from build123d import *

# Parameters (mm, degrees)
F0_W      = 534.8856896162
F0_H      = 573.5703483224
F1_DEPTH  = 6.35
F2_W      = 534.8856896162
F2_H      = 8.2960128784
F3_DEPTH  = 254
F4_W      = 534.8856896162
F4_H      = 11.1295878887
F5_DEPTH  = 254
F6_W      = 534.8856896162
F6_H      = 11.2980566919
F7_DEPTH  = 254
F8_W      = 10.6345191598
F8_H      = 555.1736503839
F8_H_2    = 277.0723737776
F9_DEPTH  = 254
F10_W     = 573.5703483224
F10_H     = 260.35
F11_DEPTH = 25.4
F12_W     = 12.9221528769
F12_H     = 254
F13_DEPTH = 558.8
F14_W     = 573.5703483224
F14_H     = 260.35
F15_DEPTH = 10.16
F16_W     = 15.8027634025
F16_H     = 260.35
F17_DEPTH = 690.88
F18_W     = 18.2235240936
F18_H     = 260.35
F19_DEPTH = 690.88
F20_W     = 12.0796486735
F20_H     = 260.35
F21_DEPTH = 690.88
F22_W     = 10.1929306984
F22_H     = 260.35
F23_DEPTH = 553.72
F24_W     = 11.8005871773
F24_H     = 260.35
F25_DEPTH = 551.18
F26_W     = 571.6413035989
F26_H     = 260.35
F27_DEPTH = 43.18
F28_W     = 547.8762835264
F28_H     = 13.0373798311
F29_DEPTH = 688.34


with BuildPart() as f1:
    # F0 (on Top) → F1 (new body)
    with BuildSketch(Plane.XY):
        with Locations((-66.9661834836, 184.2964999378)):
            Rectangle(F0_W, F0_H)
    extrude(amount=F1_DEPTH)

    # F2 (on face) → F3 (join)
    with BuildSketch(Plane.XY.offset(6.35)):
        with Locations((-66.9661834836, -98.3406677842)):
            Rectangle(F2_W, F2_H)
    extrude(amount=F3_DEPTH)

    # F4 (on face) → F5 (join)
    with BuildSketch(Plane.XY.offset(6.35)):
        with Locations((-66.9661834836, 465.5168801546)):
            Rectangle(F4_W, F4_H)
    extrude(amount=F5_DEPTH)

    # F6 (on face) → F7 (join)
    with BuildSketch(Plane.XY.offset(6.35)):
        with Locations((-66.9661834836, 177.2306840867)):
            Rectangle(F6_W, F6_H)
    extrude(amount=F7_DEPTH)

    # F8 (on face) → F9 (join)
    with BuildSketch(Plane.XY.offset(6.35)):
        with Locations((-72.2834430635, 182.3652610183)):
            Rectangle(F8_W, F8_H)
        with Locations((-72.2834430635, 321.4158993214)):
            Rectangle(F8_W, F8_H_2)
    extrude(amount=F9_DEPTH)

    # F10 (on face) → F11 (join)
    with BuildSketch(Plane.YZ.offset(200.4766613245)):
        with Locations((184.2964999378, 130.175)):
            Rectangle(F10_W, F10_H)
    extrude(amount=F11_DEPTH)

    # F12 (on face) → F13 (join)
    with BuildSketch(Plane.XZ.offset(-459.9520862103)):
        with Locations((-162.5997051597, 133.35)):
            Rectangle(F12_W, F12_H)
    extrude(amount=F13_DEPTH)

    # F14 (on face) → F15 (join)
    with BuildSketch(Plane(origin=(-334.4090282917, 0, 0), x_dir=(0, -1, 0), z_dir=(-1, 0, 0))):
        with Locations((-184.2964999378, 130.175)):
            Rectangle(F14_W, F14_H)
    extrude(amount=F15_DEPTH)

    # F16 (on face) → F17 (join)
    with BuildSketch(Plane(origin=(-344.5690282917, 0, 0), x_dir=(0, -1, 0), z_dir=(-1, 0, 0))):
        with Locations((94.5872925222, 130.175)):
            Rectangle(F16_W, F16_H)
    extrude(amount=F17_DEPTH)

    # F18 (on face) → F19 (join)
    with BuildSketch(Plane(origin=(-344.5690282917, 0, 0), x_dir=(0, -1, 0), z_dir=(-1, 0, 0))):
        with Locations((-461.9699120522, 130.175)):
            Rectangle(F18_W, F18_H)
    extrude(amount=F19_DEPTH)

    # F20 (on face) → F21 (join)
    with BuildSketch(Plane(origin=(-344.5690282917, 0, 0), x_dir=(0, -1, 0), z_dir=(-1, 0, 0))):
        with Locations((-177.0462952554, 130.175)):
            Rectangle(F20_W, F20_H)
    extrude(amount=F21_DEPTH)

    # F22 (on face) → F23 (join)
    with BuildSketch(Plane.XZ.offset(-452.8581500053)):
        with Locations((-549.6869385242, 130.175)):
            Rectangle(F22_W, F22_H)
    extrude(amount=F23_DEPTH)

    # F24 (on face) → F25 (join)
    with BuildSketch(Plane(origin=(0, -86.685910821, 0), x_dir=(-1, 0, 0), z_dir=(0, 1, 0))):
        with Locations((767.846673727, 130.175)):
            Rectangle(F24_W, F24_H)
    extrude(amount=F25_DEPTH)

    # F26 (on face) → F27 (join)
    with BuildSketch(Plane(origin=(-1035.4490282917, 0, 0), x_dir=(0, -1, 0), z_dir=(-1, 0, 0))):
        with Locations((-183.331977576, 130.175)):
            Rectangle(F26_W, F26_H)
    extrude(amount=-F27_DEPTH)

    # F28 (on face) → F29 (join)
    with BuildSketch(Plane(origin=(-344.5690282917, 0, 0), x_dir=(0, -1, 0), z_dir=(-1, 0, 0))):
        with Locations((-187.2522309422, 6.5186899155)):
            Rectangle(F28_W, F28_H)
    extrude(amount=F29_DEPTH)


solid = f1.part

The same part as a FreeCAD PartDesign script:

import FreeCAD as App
import Part
import Sketcher
Q = App.Units.Quantity

doc = App.newDocument("Part")
body = doc.addObject("PartDesign::Body", "Body")

# Sketch on XY plane
sketch1 = body.newObject("Sketcher::SketchObject", "Sketch")
sketch1.AttachmentSupport = (doc.getObject("XY_Plane"), [""])
sketch1.MapMode = "FlatFace"
sketch1.addGeometry(Part.LineSegment(App.Vector(-334, 471, 0), App.Vector(-334, -102, 0)), False)
sketch1.addGeometry(Part.LineSegment(App.Vector(-334, -102, 0), App.Vector(200, -102, 0)), False)
sketch1.addGeometry(Part.LineSegment(App.Vector(200, -102, 0), App.Vector(200, 471, 0)), False)
sketch1.addGeometry(Part.LineSegment(App.Vector(200, 471, 0), App.Vector(-334, 471, 0)), False)
sketch1.addConstraint(Sketcher.Constraint("Coincident", 0, 2, 1, 1))
sketch1.addConstraint(Sketcher.Constraint("Coincident", 1, 2, 2, 1))
sketch1.addConstraint(Sketcher.Constraint("Coincident", 2, 2, 3, 1))
sketch1.addConstraint(Sketcher.Constraint("Coincident", 3, 2, 0, 1))
sketch1.addConstraint(Sketcher.Constraint("Vertical", 0))
sketch1.addConstraint(Sketcher.Constraint("Horizontal", 1))
sketch1.addConstraint(Sketcher.Constraint("Vertical", 2))
sketch1.addConstraint(Sketcher.Constraint("Horizontal", 3))
sketch1.addConstraint(Sketcher.Constraint("DistanceX", 1, 1, 1, 2, 534.88569))
sketch1.addConstraint(Sketcher.Constraint("DistanceY", 0, 2, 0, 1, 573.570348))
sketch1.addConstraint(Sketcher.Constraint("DistanceX", 0, 2, -1, 1, 334.409028))
sketch1.addConstraint(Sketcher.Constraint("DistanceY", 0, 2, -1, 1, 102.488674))
pad1 = body.newObject("PartDesign::Pad", "Pad")
pad1.Profile = sketch1
pad1.Length = Q("0.25 in")

# Sketch on XY plane
sketch2 = body.newObject("Sketcher::SketchObject", "Sketch001")
sketch2.AttachmentSupport = (doc.getObject("XY_Plane"), [""])
sketch2.MapMode = "FlatFace"
sketch2.AttachmentOffset = App.Placement(App.Vector(0, 0, 0.25 * 25.4), App.Rotation())
sketch2.addGeometry(Part.LineSegment(App.Vector(-334, -94, 0), App.Vector(-334, -102, 0)), False)
sketch2.addGeometry(Part.LineSegment(App.Vector(-334, -102, 0), App.Vector(200, -102, 0)), False)
sketch2.addGeometry(Part.LineSegment(App.Vector(200, -102, 0), App.Vector(200, -94, 0)), False)
sketch2.addGeometry(Part.LineSegment(App.Vector(200, -94, 0), App.Vector(-334, -94, 0)), False)
sketch2.addConstraint(Sketcher.Constraint("Coincident", 0, 2, 1, 1))
sketch2.addConstraint(Sketcher.Constraint("Coincident", 1, 2, 2, 1))
sketch2.addConstraint(Sketcher.Constraint("Coincident", 2, 2, 3, 1))
sketch2.addConstraint(Sketcher.Constraint("Coincident", 3, 2, 0, 1))
sketch2.addConstraint(Sketcher.Constraint("Vertical", 0))
sketch2.addConstraint(Sketcher.Constraint("Horizontal", 1))
sketch2.addConstraint(Sketcher.Constraint("Vertical", 2))
sketch2.addConstraint(Sketcher.Constraint("Horizontal", 3))
sketch2.addConstraint(Sketcher.Constraint("DistanceX", 1, 1, 1, 2, 534.88569))
sketch2.addConstraint(Sketcher.Constraint("DistanceY", 0, 2, 0, 1, 8.296013))
sketch2.addConstraint(Sketcher.Constraint("DistanceX", 0, 2, -1, 1, 334.409028))
sketch2.addConstraint(Sketcher.Constraint("DistanceY", 2, 2, -1, 1, 94.192661))
pad2 = body.newObject("PartDesign::Pad", "Pad001")
pad2.Profile = sketch2
pad2.Length = Q("10 in")

# Sketch on XY plane
sketch3 = body.newObject("Sketcher::SketchObject", "Sketch002")
sketch3.AttachmentSupport = (doc.getObject("XY_Plane"), [""])
sketch3.MapMode = "FlatFace"
sketch3.AttachmentOffset = App.Placement(App.Vector(0, 0, 0.25 * 25.4), App.Rotation())
sketch3.addGeometry(Part.LineSegment(App.Vector(-334, 471, 0), App.Vector(-334, 460, 0)), False)
sketch3.addGeometry(Part.LineSegment(App.Vector(-334, 460, 0), App.Vector(200, 460, 0)), False)
sketch3.addGeometry(Part.LineSegment(App.Vector(200, 460, 0), App.Vector(200, 471, 0)), False)
sketch3.addGeometry(Part.LineSegment(App.Vector(200, 471, 0), App.Vector(-334, 471, 0)), False)
sketch3.addConstraint(Sketcher.Constraint("Coincident", 0, 2, 1, 1))
sketch3.addConstraint(Sketcher.Constraint("Coincident", 1, 2, 2, 1))
sketch3.addConstraint(Sketcher.Constraint("Coincident", 2, 2, 3, 1))
sketch3.addConstraint(Sketcher.Constraint("Coincident", 3, 2, 0, 1))
sketch3.addConstraint(Sketcher.Constraint("Vertical", 0))
sketch3.addConstraint(Sketcher.Constraint("Horizontal", 1))
sketch3.addConstraint(Sketcher.Constraint("Vertical", 2))
sketch3.addConstraint(Sketcher.Constraint("Horizontal", 3))
sketch3.addConstraint(Sketcher.Constraint("DistanceX", 1, 1, 1, 2, 534.88569))
sketch3.addConstraint(Sketcher.Constraint("DistanceY", 0, 2, 0, 1, 11.129588))
sketch3.addConstraint(Sketcher.Constraint("DistanceX", 0, 2, -1, 1, 334.409028))
sketch3.addConstraint(Sketcher.Constraint("DistanceY", -1, 1, 0, 2, 459.952086))
pad3 = body.newObject("PartDesign::Pad", "Pad002")
pad3.Profile = sketch3
pad3.Length = Q("10 in")

# Sketch on XY plane
sketch4 = body.newObject("Sketcher::SketchObject", "Sketch003")
sketch4.AttachmentSupport = (doc.getObject("XY_Plane"), [""])
sketch4.MapMode = "FlatFace"
sketch4.AttachmentOffset = App.Placement(App.Vector(0, 0, 0.25 * 25.4), App.Rotation())
sketch4.addGeometry(Part.LineSegment(App.Vector(-334, 183, 0), App.Vector(-334, 172, 0)), False)
sketch4.addGeometry(Part.LineSegment(App.Vector(-334, 172, 0), App.Vector(200, 172, 0)), False)
sketch4.addGeometry(Part.LineSegment(App.Vector(200, 172, 0), App.Vector(200, 183, 0)), False)
sketch4.addGeometry(Part.LineSegment(App.Vector(200, 183, 0), App.Vector(-334, 183, 0)), False)
sketch4.addConstraint(Sketcher.Constraint("Coincident", 0, 2, 1, 1))
sketch4.addConstraint(Sketcher.Constraint("Coincident", 1, 2, 2, 1))
sketch4.addConstraint(Sketcher.Constraint("Coincident", 2, 2, 3, 1))
sketch4.addConstraint(Sketcher.Constraint("Coincident", 3, 2, 0, 1))
sketch4.addConstraint(Sketcher.Constraint("Vertical", 0))
sketch4.addConstraint(Sketcher.Constraint("Horizontal", 1))
sketch4.addConstraint(Sketcher.Constraint("Vertical", 2))
sketch4.addConstraint(Sketcher.Constraint("Horizontal", 3))
sketch4.addConstraint(Sketcher.Constraint("DistanceX", 1, 1, 1, 2, 534.88569))
sketch4.addConstraint(Sketcher.Constraint("DistanceY", 0, 2, 0, 1, 11.298057))
sketch4.addConstraint(Sketcher.Constraint("DistanceX", 0, 2, -1, 1, 334.409028))
sketch4.addConstraint(Sketcher.Constraint("DistanceY", -1, 1, 0, 2, 171.581656))
pad4 = body.newObject("PartDesign::Pad", "Pad003")
pad4.Profile = sketch4
pad4.Length = Q("10 in")

# Sketch on XY plane
sketch5 = body.newObject("Sketcher::SketchObject", "Sketch004")
sketch5.AttachmentSupport = (doc.getObject("XY_Plane"), [""])
sketch5.MapMode = "FlatFace"
sketch5.AttachmentOffset = App.Placement(App.Vector(0, 0, 0.25 * 25.4), App.Rotation())
sketch5.addGeometry(Part.LineSegment(App.Vector(-78, -95, 0), App.Vector(-67, -95, 0)), False)
sketch5.addGeometry(Part.LineSegment(App.Vector(-67, -95, 0), App.Vector(-67, 460, 0)), False)
sketch5.addGeometry(Part.LineSegment(App.Vector(-67, 460, 0), App.Vector(-78, 460, 0)), False)
sketch5.addGeometry(Part.LineSegment(App.Vector(-78, 460, 0), App.Vector(-78, -95, 0)), False)
sketch5.addConstraint(Sketcher.Constraint("Coincident", 0, 2, 1, 1))
sketch5.addConstraint(Sketcher.Constraint("Coincident", 1, 2, 2, 1))
sketch5.addConstraint(Sketcher.Constraint("Coincident", 2, 2, 3, 1))
sketch5.addConstraint(Sketcher.Constraint("Coincident", 3, 2, 0, 1))
sketch5.addConstraint(Sketcher.Constraint("Horizontal", 0))
sketch5.addConstraint(Sketcher.Constraint("Vertical", 1))
sketch5.addConstraint(Sketcher.Constraint("Horizontal", 2))
sketch5.addConstraint(Sketcher.Constraint("Vertical", 3))
sketch5.addConstraint(Sketcher.Constraint("DistanceX", 0, 1, 0, 2, 10.634519))
sketch5.addConstraint(Sketcher.Constraint("DistanceY", 1, 1, 1, 2, 555.17365))
sketch5.addConstraint(Sketcher.Constraint("DistanceX", 0, 2, -1, 1, 66.966183))
sketch5.addConstraint(Sketcher.Constraint("DistanceY", 0, 2, -1, 1, 95.221564))
pad5 = body.newObject("PartDesign::Pad", "Pad004")
pad5.Profile = sketch5
pad5.Length = Q("10 in")

# Sketch on YZ plane
sketch6 = body.newObject("Sketcher::SketchObject", "Sketch005")
sketch6.AttachmentSupport = (doc.getObject("YZ_Plane"), [""])
sketch6.MapMode = "FlatFace"
sketch6.AttachmentOffset = App.Placement(App.Vector(0, 0, 200.476661), App.Rotation())
sketch6.addGeometry(Part.LineSegment(App.Vector(-102, 260, 0), App.Vector(-102, 0, 0)), False)
sketch6.addGeometry(Part.LineSegment(App.Vector(-102, 0, 0), App.Vector(471, 0, 0)), False)
sketch6.addGeometry(Part.LineSegment(App.Vector(471, 0, 0), App.Vector(471, 260, 0)), False)
sketch6.addGeometry(Part.LineSegment(App.Vector(471, 260, 0), App.Vector(-102, 260, 0)), False)
sketch6.addConstraint(Sketcher.Constraint("Coincident", 0, 2, 1, 1))
sketch6.addConstraint(Sketcher.Constraint("Coincident", 1, 2, 2, 1))
sketch6.addConstraint(Sketcher.Constraint("Coincident", 2, 2, 3, 1))
sketch6.addConstraint(Sketcher.Constraint("Coincident", 3, 2, 0, 1))
sketch6.addConstraint(Sketcher.Constraint("Vertical", 0))
sketch6.addConstraint(Sketcher.Constraint("Horizontal", 1))
sketch6.addConstraint(Sketcher.Constraint("Vertical", 2))
sketch6.addConstraint(Sketcher.Constraint("Horizontal", 3))
sketch6.addConstraint(Sketcher.Constraint("PointOnObject", 0, 2, -1))
sketch6.addConstraint(Sketcher.Constraint("DistanceY", 0, 2, 0, 1, Q("10.25 in")))
sketch6.addConstraint(Sketcher.Constraint("DistanceX", 1, 1, 1, 2, 573.570348))
sketch6.addConstraint(Sketcher.Constraint("DistanceX", 0, 2, -1, 1, 102.488674))
pad6 = body.newObject("PartDesign::Pad", "Pad005")
pad6.Profile = sketch6
pad6.Length = Q("1 in")

# Sketch on XZ plane
sketch7 = body.newObject("Sketcher::SketchObject", "Sketch006")
sketch7.AttachmentSupport = (doc.getObject("XZ_Plane"), [""])
sketch7.MapMode = "FlatFace"
sketch7.AttachmentOffset = App.Placement(App.Vector(0, 0, -459.952086), App.Rotation())
sketch7.addGeometry(Part.LineSegment(App.Vector(-169, 260, 0), App.Vector(-169, 6, 0)), False)
sketch7.addGeometry(Part.LineSegment(App.Vector(-169, 6, 0), App.Vector(-156, 6, 0)), False)
sketch7.addGeometry(Part.LineSegment(App.Vector(-156, 6, 0), App.Vector(-156, 260, 0)), False)
sketch7.addGeometry(Part.LineSegment(App.Vector(-156, 260, 0), App.Vector(-169, 260, 0)), False)
sketch7.addConstraint(Sketcher.Constraint("Coincident", 0, 2, 1, 1))
sketch7.addConstraint(Sketcher.Constraint("Coincident", 1, 2, 2, 1))
sketch7.addConstraint(Sketcher.Constraint("Coincident", 2, 2, 3, 1))
sketch7.addConstraint(Sketcher.Constraint("Coincident", 3, 2, 0, 1))
sketch7.addConstraint(Sketcher.Constraint("Vertical", 0))
sketch7.addConstraint(Sketcher.Constraint("Horizontal", 1))
sketch7.addConstraint(Sketcher.Constraint("Vertical", 2))
sketch7.addConstraint(Sketcher.Constraint("Horizontal", 3))
sketch7.addConstraint(Sketcher.Constraint("DistanceY", 0, 2, 0, 1, Q("10 in")))
sketch7.addConstraint(Sketcher.Constraint("DistanceY", -1, 1, 0, 2, Q("0.25 in")))
sketch7.addConstraint(Sketcher.Constraint("DistanceX", 1, 1, 1, 2, 12.922153))
sketch7.addConstraint(Sketcher.Constraint("DistanceX", 0, 2, -1, 1, 169.060782))
pad7 = body.newObject("PartDesign::Pad", "Pad006")
pad7.Profile = sketch7
pad7.Length = Q("22 in")

# Sketch on YZ plane
sketch8 = body.newObject("Sketcher::SketchObject", "Sketch007")
sketch8.AttachmentSupport = (doc.getObject("YZ_Plane"), [""])
sketch8.MapMode = "FlatFace"
sketch8.AttachmentOffset = App.Placement(App.Vector(0, 0, -334.409028), App.Rotation())
sketch8.addGeometry(Part.LineSegment(App.Vector(471, 260, 0), App.Vector(471, 0, 0)), False)
sketch8.addGeometry(Part.LineSegment(App.Vector(471, 0, 0), App.Vector(-102, 0, 0)), False)
sketch8.addGeometry(Part.LineSegment(App.Vector(-102, 0, 0), App.Vector(-102, 260, 0)), False)
sketch8.addGeometry(Part.LineSegment(App.Vector(-102, 260, 0), App.Vector(471, 260, 0)), False)
sketch8.addConstraint(Sketcher.Constraint("Coincident", 0, 2, 1, 1))
sketch8.addConstraint(Sketcher.Constraint("Coincident", 1, 2, 2, 1))
sketch8.addConstraint(Sketcher.Constraint("Coincident", 2, 2, 3, 1))
sketch8.addConstraint(Sketcher.Constraint("Coincident", 3, 2, 0, 1))
sketch8.addConstraint(Sketcher.Constraint("Vertical", 0))
sketch8.addConstraint(Sketcher.Constraint("Horizontal", 1))
sketch8.addConstraint(Sketcher.Constraint("Vertical", 2))
sketch8.addConstraint(Sketcher.Constraint("Horizontal", 3))
sketch8.addConstraint(Sketcher.Constraint("PointOnObject", 0, 2, -1))
sketch8.addConstraint(Sketcher.Constraint("DistanceY", 0, 2, 0, 1, Q("10.25 in")))
sketch8.addConstraint(Sketcher.Constraint("DistanceX", 1, 2, 1, 1, 573.570348))
sketch8.addConstraint(Sketcher.Constraint("DistanceX", -1, 1, 0, 2, 471.081674))
pad8 = body.newObject("PartDesign::Pad", "Pad007")
pad8.Profile = sketch8
pad8.Length = Q("0.4 in")
pad8.Reversed = True

# Sketch on YZ plane
sketch9 = body.newObject("Sketcher::SketchObject", "Sketch008")
sketch9.AttachmentSupport = (doc.getObject("YZ_Plane"), [""])
sketch9.MapMode = "FlatFace"
sketch9.AttachmentOffset = App.Placement(App.Vector(0, 0, -344.569028), App.Rotation())
sketch9.addGeometry(Part.LineSegment(App.Vector(-87, 260, 0), App.Vector(-87, 0, 0)), False)
sketch9.addGeometry(Part.LineSegment(App.Vector(-87, 0, 0), App.Vector(-102, 0, 0)), False)
sketch9.addGeometry(Part.LineSegment(App.Vector(-102, 0, 0), App.Vector(-102, 260, 0)), False)
sketch9.addGeometry(Part.LineSegment(App.Vector(-102, 260, 0), App.Vector(-87, 260, 0)), False)
sketch9.addConstraint(Sketcher.Constraint("Coincident", 0, 2, 1, 1))
sketch9.addConstraint(Sketcher.Constraint("Coincident", 1, 2, 2, 1))
sketch9.addConstraint(Sketcher.Constraint("Coincident", 2, 2, 3, 1))
sketch9.addConstraint(Sketcher.Constraint("Coincident", 3, 2, 0, 1))
sketch9.addConstraint(Sketcher.Constraint("Vertical", 0))
sketch9.addConstraint(Sketcher.Constraint("Horizontal", 1))
sketch9.addConstraint(Sketcher.Constraint("Vertical", 2))
sketch9.addConstraint(Sketcher.Constraint("Horizontal", 3))
sketch9.addConstraint(Sketcher.Constraint("PointOnObject", 0, 2, -1))
sketch9.addConstraint(Sketcher.Constraint("DistanceY", 0, 2, 0, 1, Q("10.25 in")))
sketch9.addConstraint(Sketcher.Constraint("DistanceX", 1, 2, 1, 1, 15.802763))
sketch9.addConstraint(Sketcher.Constraint("DistanceX", 0, 2, -1, 1, 86.685911))
pad9 = body.newObject("PartDesign::Pad", "Pad008")
pad9.Profile = sketch9
pad9.Length = Q("27.2 in")
pad9.Reversed = True

# Sketch on YZ plane
sketch10 = body.newObject("Sketcher::SketchObject", "Sketch009")
sketch10.AttachmentSupport = (doc.getObject("YZ_Plane"), [""])
sketch10.MapMode = "FlatFace"
sketch10.AttachmentOffset = App.Placement(App.Vector(0, 0, -344.569028), App.Rotation())
sketch10.addGeometry(Part.LineSegment(App.Vector(471, 260, 0), App.Vector(471, 0, 0)), False)
sketch10.addGeometry(Part.LineSegment(App.Vector(471, 0, 0), App.Vector(453, 0, 0)), False)
sketch10.addGeometry(Part.LineSegment(App.Vector(453, 0, 0), App.Vector(453, 260, 0)), False)
sketch10.addGeometry(Part.LineSegment(App.Vector(453, 260, 0), App.Vector(471, 260, 0)), False)
sketch10.addConstraint(Sketcher.Constraint("Coincident", 0, 2, 1, 1))
sketch10.addConstraint(Sketcher.Constraint("Coincident", 1, 2, 2, 1))
sketch10.addConstraint(Sketcher.Constraint("Coincident", 2, 2, 3, 1))
sketch10.addConstraint(Sketcher.Constraint("Coincident", 3, 2, 0, 1))
sketch10.addConstraint(Sketcher.Constraint("Vertical", 0))
sketch10.addConstraint(Sketcher.Constraint("Horizontal", 1))
sketch10.addConstraint(Sketcher.Constraint("Vertical", 2))
sketch10.addConstraint(Sketcher.Constraint("Horizontal", 3))
sketch10.addConstraint(Sketcher.Constraint("PointOnObject", 0, 2, -1))
sketch10.addConstraint(Sketcher.Constraint("DistanceY", 0, 2, 0, 1, Q("10.25 in")))
sketch10.addConstraint(Sketcher.Constraint("DistanceX", 1, 2, 1, 1, 18.223524))
sketch10.addConstraint(Sketcher.Constraint("DistanceX", -1, 1, 1, 2, 452.85815))
pad10 = body.newObject("PartDesign::Pad", "Pad009")
pad10.Profile = sketch10
pad10.Length = Q("27.2 in")
pad10.Reversed = True

# Sketch on YZ plane
sketch11 = body.newObject("Sketcher::SketchObject", "Sketch010")
sketch11.AttachmentSupport = (doc.getObject("YZ_Plane"), [""])
sketch11.MapMode = "FlatFace"
sketch11.AttachmentOffset = App.Placement(App.Vector(0, 0, -344.569028), App.Rotation())
sketch11.addGeometry(Part.LineSegment(App.Vector(183, 260, 0), App.Vector(183, 0, 0)), False)
sketch11.addGeometry(Part.LineSegment(App.Vector(183, 0, 0), App.Vector(171, 0, 0)), False)
sketch11.addGeometry(Part.LineSegment(App.Vector(171, 0, 0), App.Vector(171, 260, 0)), False)
sketch11.addGeometry(Part.LineSegment(App.Vector(171, 260, 0), App.Vector(183, 260, 0)), False)
sketch11.addConstraint(Sketcher.Constraint("Coincident", 0, 2, 1, 1))
sketch11.addConstraint(Sketcher.Constraint("Coincident", 1, 2, 2, 1))
sketch11.addConstraint(Sketcher.Constraint("Coincident", 2, 2, 3, 1))
sketch11.addConstraint(Sketcher.Constraint("Coincident", 3, 2, 0, 1))
sketch11.addConstraint(Sketcher.Constraint("Vertical", 0))
sketch11.addConstraint(Sketcher.Constraint("Horizontal", 1))
sketch11.addConstraint(Sketcher.Constraint("Vertical", 2))
sketch11.addConstraint(Sketcher.Constraint("Horizontal", 3))
sketch11.addConstraint(Sketcher.Constraint("PointOnObject", 0, 2, -1))
sketch11.addConstraint(Sketcher.Constraint("DistanceY", 0, 2, 0, 1, Q("10.25 in")))
sketch11.addConstraint(Sketcher.Constraint("DistanceX", 1, 2, 1, 1, 12.079649))
sketch11.addConstraint(Sketcher.Constraint("DistanceX", -1, 1, 0, 2, 183.08612))
pad11 = body.newObject("PartDesign::Pad", "Pad010")
pad11.Profile = sketch11
pad11.Length = Q("27.2 in")
pad11.Reversed = True

# Sketch on XZ plane
sketch12 = body.newObject("Sketcher::SketchObject", "Sketch011")
sketch12.AttachmentSupport = (doc.getObject("XZ_Plane"), [""])
sketch12.MapMode = "FlatFace"
sketch12.AttachmentOffset = App.Placement(App.Vector(0, 0, -452.85815), App.Rotation())
sketch12.addGeometry(Part.LineSegment(App.Vector(-555, 260, 0), App.Vector(-555, 0, 0)), False)
sketch12.addGeometry(Part.LineSegment(App.Vector(-555, 0, 0), App.Vector(-545, 0, 0)), False)
sketch12.addGeometry(Part.LineSegment(App.Vector(-545, 0, 0), App.Vector(-545, 260, 0)), False)
sketch12.addGeometry(Part.LineSegment(App.Vector(-545, 260, 0), App.Vector(-555, 260, 0)), False)
sketch12.addConstraint(Sketcher.Constraint("Coincident", 0, 2, 1, 1))
sketch12.addConstraint(Sketcher.Constraint("Coincident", 1, 2, 2, 1))
sketch12.addConstraint(Sketcher.Constraint("Coincident", 2, 2, 3, 1))
sketch12.addConstraint(Sketcher.Constraint("Coincident", 3, 2, 0, 1))
sketch12.addConstraint(Sketcher.Constraint("Vertical", 0))
sketch12.addConstraint(Sketcher.Constraint("Horizontal", 1))
sketch12.addConstraint(Sketcher.Constraint("Vertical", 2))
sketch12.addConstraint(Sketcher.Constraint("Horizontal", 3))
sketch12.addConstraint(Sketcher.Constraint("PointOnObject", 0, 2, -1))
sketch12.addConstraint(Sketcher.Constraint("DistanceY", 0, 2, 0, 1, Q("10.25 in")))
sketch12.addConstraint(Sketcher.Constraint("DistanceX", 1, 1, 1, 2, 10.192931))
sketch12.addConstraint(Sketcher.Constraint("DistanceX", 0, 2, -1, 1, 554.783404))
pad12 = body.newObject("PartDesign::Pad", "Pad011")
pad12.Profile = sketch12
pad12.Length = Q("21.8 in")

# Sketch on XZ plane
sketch13 = body.newObject("Sketcher::SketchObject", "Sketch012")
sketch13.AttachmentSupport = (doc.getObject("XZ_Plane"), [""])
sketch13.MapMode = "FlatFace"
sketch13.AttachmentOffset = App.Placement(App.Vector(0, 0, 86.685911), App.Rotation())
sketch13.addGeometry(Part.LineSegment(App.Vector(-762, 260, 0), App.Vector(-762, 0, 0)), False)
sketch13.addGeometry(Part.LineSegment(App.Vector(-762, 0, 0), App.Vector(-774, 0, 0)), False)
sketch13.addGeometry(Part.LineSegment(App.Vector(-774, 0, 0), App.Vector(-774, 260, 0)), False)
sketch13.addGeometry(Part.LineSegment(App.Vector(-774, 260, 0), App.Vector(-762, 260, 0)), False)
sketch13.addConstraint(Sketcher.Constraint("Coincident", 0, 2, 1, 1))
sketch13.addConstraint(Sketcher.Constraint("Coincident", 1, 2, 2, 1))
sketch13.addConstraint(Sketcher.Constraint("Coincident", 2, 2, 3, 1))
sketch13.addConstraint(Sketcher.Constraint("Coincident", 3, 2, 0, 1))
sketch13.addConstraint(Sketcher.Constraint("Vertical", 0))
sketch13.addConstraint(Sketcher.Constraint("Horizontal", 1))
sketch13.addConstraint(Sketcher.Constraint("Vertical", 2))
sketch13.addConstraint(Sketcher.Constraint("Horizontal", 3))
sketch13.addConstraint(Sketcher.Constraint("PointOnObject", 0, 2, -1))
sketch13.addConstraint(Sketcher.Constraint("DistanceY", 0, 2, 0, 1, Q("10.25 in")))
sketch13.addConstraint(Sketcher.Constraint("DistanceX", 1, 2, 1, 1, 11.800587))
sketch13.addConstraint(Sketcher.Constraint("DistanceX", 0, 2, -1, 1, 761.94638))
pad13 = body.newObject("PartDesign::Pad", "Pad012")
pad13.Profile = sketch13
pad13.Length = Q("21.7 in")
pad13.Reversed = True

# Sketch on YZ plane
sketch14 = body.newObject("Sketcher::SketchObject", "Sketch013")
sketch14.AttachmentSupport = (doc.getObject("YZ_Plane"), [""])
sketch14.MapMode = "FlatFace"
sketch14.AttachmentOffset = App.Placement(App.Vector(0, 0, -1035.449028), App.Rotation())
sketch14.addGeometry(Part.LineSegment(App.Vector(469, 260, 0), App.Vector(469, 0, 0)), False)
sketch14.addGeometry(Part.LineSegment(App.Vector(469, 0, 0), App.Vector(-102, 0, 0)), False)
sketch14.addGeometry(Part.LineSegment(App.Vector(-102, 0, 0), App.Vector(-102, 260, 0)), False)
sketch14.addGeometry(Part.LineSegment(App.Vector(-102, 260, 0), App.Vector(469, 260, 0)), False)
sketch14.addConstraint(Sketcher.Constraint("Coincident", 0, 2, 1, 1))
sketch14.addConstraint(Sketcher.Constraint("Coincident", 1, 2, 2, 1))
sketch14.addConstraint(Sketcher.Constraint("Coincident", 2, 2, 3, 1))
sketch14.addConstraint(Sketcher.Constraint("Coincident", 3, 2, 0, 1))
sketch14.addConstraint(Sketcher.Constraint("Vertical", 0))
sketch14.addConstraint(Sketcher.Constraint("Horizontal", 1))
sketch14.addConstraint(Sketcher.Constraint("Vertical", 2))
sketch14.addConstraint(Sketcher.Constraint("Horizontal", 3))
sketch14.addConstraint(Sketcher.Constraint("PointOnObject", 0, 2, -1))
sketch14.addConstraint(Sketcher.Constraint("DistanceY", 0, 2, 0, 1, Q("10.25 in")))
sketch14.addConstraint(Sketcher.Constraint("DistanceX", 1, 2, 1, 1, 571.641304))
sketch14.addConstraint(Sketcher.Constraint("DistanceX", -1, 1, 0, 2, 469.152629))
pad14 = body.newObject("PartDesign::Pad", "Pad013")
pad14.Profile = sketch14
pad14.Length = Q("1.7 in")

# Sketch on YZ plane
sketch15 = body.newObject("Sketcher::SketchObject", "Sketch014")
sketch15.AttachmentSupport = (doc.getObject("YZ_Plane"), [""])
sketch15.MapMode = "FlatFace"
sketch15.AttachmentOffset = App.Placement(App.Vector(0, 0, -344.569028), App.Rotation())
sketch15.addGeometry(Part.LineSegment(App.Vector(461, 13, 0), App.Vector(461, 0, 0)), False)
sketch15.addGeometry(Part.LineSegment(App.Vector(461, 0, 0), App.Vector(-87, 0, 0)), False)
sketch15.addGeometry(Part.LineSegment(App.Vector(-87, 0, 0), App.Vector(-87, 13, 0)), False)
sketch15.addGeometry(Part.LineSegment(App.Vector(-87, 13, 0), App.Vector(461, 13, 0)), False)
sketch15.addConstraint(Sketcher.Constraint("Coincident", 0, 2, 1, 1))
sketch15.addConstraint(Sketcher.Constraint("Coincident", 1, 2, 2, 1))
sketch15.addConstraint(Sketcher.Constraint("Coincident", 2, 2, 3, 1))
sketch15.addConstraint(Sketcher.Constraint("Coincident", 3, 2, 0, 1))
sketch15.addConstraint(Sketcher.Constraint("Vertical", 0))
sketch15.addConstraint(Sketcher.Constraint("Horizontal", 1))
sketch15.addConstraint(Sketcher.Constraint("Vertical", 2))
sketch15.addConstraint(Sketcher.Constraint("Horizontal", 3))
sketch15.addConstraint(Sketcher.Constraint("PointOnObject", 0, 2, -1))
sketch15.addConstraint(Sketcher.Constraint("DistanceY", 0, 2, 0, 1, 13.03738))
sketch15.addConstraint(Sketcher.Constraint("DistanceX", 1, 2, 1, 1, 547.876284))
sketch15.addConstraint(Sketcher.Constraint("DistanceX", 1, 2, -1, 1, 86.685911))
pad15 = body.newObject("PartDesign::Pad", "Pad014")
pad15.Profile = sketch15
pad15.Length = Q("27.1 in")
pad15.Reversed = True

doc.recompute()
